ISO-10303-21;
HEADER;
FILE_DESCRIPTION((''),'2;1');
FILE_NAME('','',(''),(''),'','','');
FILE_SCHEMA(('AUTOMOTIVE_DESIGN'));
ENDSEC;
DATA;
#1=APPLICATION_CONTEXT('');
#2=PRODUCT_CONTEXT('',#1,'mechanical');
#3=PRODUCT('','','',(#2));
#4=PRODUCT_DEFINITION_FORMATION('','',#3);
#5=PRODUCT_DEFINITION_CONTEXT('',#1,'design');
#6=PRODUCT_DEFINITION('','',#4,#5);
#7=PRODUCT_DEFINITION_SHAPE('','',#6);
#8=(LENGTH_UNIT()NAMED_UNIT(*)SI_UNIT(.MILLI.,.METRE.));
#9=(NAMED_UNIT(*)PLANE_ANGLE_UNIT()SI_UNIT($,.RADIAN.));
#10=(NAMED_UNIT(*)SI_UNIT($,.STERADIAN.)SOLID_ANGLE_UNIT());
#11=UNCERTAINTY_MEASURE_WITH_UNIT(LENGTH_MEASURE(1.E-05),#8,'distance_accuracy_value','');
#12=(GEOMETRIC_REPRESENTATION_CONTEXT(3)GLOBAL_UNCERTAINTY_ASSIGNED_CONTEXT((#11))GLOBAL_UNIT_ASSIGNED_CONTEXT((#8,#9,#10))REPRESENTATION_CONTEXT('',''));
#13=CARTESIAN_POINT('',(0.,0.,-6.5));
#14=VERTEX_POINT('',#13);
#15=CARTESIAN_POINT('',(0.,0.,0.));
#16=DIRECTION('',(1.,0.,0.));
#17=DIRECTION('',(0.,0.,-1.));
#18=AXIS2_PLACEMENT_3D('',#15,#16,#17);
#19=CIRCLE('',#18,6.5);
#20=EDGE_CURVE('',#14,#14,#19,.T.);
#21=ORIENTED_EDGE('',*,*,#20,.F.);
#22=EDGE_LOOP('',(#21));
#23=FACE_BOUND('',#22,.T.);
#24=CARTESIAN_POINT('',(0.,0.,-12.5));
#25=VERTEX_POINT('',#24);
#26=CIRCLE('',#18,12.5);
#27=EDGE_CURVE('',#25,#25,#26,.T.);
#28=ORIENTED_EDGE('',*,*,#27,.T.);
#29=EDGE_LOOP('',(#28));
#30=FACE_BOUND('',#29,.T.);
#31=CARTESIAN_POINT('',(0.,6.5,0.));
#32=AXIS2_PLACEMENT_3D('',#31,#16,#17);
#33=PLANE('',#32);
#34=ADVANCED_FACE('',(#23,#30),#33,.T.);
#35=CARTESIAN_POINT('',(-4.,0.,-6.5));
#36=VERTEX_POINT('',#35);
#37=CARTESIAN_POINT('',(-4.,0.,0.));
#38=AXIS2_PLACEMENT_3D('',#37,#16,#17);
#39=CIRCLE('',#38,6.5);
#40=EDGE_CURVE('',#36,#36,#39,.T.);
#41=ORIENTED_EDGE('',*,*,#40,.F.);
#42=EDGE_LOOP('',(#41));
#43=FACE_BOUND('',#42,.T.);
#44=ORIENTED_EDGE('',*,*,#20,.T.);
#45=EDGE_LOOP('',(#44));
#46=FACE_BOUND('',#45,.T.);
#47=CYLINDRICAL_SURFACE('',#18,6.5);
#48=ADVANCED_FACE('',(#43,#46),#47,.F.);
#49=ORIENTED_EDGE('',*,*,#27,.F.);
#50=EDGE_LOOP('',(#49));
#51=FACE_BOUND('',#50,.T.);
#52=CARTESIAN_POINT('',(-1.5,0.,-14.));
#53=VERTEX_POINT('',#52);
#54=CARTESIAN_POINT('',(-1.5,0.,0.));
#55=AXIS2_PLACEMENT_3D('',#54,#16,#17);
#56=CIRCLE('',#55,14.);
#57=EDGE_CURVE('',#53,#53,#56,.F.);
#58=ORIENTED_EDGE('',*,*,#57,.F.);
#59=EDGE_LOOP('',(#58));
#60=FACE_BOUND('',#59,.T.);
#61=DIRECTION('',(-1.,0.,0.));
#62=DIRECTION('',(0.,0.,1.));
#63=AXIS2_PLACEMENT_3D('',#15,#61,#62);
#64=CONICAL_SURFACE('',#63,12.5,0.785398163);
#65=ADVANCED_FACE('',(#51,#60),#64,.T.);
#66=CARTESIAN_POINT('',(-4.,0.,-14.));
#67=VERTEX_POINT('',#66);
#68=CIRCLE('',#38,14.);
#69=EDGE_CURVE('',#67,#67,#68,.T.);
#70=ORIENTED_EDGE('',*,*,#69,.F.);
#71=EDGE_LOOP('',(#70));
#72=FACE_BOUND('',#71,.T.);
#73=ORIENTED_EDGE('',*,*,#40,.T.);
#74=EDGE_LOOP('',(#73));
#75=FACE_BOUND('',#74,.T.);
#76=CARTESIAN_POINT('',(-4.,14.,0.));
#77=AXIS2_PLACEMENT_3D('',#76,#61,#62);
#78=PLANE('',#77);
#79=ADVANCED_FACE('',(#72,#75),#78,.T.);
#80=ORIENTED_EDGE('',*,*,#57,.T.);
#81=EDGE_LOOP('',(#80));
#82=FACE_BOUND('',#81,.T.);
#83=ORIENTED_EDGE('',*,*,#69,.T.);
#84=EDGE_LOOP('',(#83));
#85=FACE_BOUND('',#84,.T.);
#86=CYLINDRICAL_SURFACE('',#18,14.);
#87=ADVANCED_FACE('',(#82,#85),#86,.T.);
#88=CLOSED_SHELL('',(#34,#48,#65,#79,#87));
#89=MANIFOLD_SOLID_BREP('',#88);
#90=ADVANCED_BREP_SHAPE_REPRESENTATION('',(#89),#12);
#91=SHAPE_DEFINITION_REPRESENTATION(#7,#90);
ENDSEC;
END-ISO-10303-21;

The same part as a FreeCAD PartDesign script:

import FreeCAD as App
import Part
import Sketcher
from FreeCAD import Vector
Q = App.Units.Quantity


def edges_at(feature, points):
    """Names of the edges that pass closest to the given points."""
    edges = feature.Shape.Edges
    near = lambda p: min(range(len(edges)), key=lambda i: edges[i].distToShape(Part.Vertex(*p))[0])
    return sorted({f"Edge{near(p) + 1}" for p in points})


def add_polygon(sketch, points):
    """Adds a closed chain of lines whose ends are joined by coincident constraints."""
    first, n = sketch.GeometryCount, len(points)
    for a, b in zip(points, points[1:] + points[:1]):
        sketch.addGeometry(Part.LineSegment(App.Vector(*a, 0), App.Vector(*b, 0)), False)
    for i in range(n):
        sketch.addConstraint(Sketcher.Constraint("Coincident", first + i, 2, first + (i + 1) % n, 1))

doc = App.newDocument("Part")
body = doc.addObject("PartDesign::Body", "Body")

sketch1 = body.newObject("Sketcher::SketchObject", "Sketch")
sketch1.AttachmentSupport = (doc.getObject("XY_Plane"), [""])
sketch1.MapMode = "FlatFace"
add_polygon(sketch1, [(-4, 14), (-4, 6.5), (0, 6.5), (0, 14)])
sketch1.addConstraint([
    Sketcher.Constraint("Vertical", 0),
    Sketcher.Constraint("Horizontal", 1),
    Sketcher.Constraint("Vertical", 2),
    Sketcher.Constraint("Horizontal", 3),
    Sketcher.Constraint("PointOnObject", 1, 2, -2),
    Sketcher.Constraint("DistanceX", 1, 1, 1, 2, Q("4 mm")),
    Sketcher.Constraint("DistanceY", 0, 2, 0, 1, Q("7.5 mm")),
    Sketcher.Constraint("DistanceY", -1, 1, 2, 2, Q("14 mm")),
])
revolution = body.newObject("PartDesign::Revolution", "Revolution")
revolution.Profile = sketch1
revolution.ReferenceAxis = (sketch1, ["H_Axis"])
revolution.Angle = 360
doc.recompute()

chamfer = body.newObject("PartDesign::Chamfer", "Chamfer")
chamfer.Base = (revolution, edges_at(revolution, [(0, 0, 14)]))
chamfer.Size = 1.5

doc.recompute()
